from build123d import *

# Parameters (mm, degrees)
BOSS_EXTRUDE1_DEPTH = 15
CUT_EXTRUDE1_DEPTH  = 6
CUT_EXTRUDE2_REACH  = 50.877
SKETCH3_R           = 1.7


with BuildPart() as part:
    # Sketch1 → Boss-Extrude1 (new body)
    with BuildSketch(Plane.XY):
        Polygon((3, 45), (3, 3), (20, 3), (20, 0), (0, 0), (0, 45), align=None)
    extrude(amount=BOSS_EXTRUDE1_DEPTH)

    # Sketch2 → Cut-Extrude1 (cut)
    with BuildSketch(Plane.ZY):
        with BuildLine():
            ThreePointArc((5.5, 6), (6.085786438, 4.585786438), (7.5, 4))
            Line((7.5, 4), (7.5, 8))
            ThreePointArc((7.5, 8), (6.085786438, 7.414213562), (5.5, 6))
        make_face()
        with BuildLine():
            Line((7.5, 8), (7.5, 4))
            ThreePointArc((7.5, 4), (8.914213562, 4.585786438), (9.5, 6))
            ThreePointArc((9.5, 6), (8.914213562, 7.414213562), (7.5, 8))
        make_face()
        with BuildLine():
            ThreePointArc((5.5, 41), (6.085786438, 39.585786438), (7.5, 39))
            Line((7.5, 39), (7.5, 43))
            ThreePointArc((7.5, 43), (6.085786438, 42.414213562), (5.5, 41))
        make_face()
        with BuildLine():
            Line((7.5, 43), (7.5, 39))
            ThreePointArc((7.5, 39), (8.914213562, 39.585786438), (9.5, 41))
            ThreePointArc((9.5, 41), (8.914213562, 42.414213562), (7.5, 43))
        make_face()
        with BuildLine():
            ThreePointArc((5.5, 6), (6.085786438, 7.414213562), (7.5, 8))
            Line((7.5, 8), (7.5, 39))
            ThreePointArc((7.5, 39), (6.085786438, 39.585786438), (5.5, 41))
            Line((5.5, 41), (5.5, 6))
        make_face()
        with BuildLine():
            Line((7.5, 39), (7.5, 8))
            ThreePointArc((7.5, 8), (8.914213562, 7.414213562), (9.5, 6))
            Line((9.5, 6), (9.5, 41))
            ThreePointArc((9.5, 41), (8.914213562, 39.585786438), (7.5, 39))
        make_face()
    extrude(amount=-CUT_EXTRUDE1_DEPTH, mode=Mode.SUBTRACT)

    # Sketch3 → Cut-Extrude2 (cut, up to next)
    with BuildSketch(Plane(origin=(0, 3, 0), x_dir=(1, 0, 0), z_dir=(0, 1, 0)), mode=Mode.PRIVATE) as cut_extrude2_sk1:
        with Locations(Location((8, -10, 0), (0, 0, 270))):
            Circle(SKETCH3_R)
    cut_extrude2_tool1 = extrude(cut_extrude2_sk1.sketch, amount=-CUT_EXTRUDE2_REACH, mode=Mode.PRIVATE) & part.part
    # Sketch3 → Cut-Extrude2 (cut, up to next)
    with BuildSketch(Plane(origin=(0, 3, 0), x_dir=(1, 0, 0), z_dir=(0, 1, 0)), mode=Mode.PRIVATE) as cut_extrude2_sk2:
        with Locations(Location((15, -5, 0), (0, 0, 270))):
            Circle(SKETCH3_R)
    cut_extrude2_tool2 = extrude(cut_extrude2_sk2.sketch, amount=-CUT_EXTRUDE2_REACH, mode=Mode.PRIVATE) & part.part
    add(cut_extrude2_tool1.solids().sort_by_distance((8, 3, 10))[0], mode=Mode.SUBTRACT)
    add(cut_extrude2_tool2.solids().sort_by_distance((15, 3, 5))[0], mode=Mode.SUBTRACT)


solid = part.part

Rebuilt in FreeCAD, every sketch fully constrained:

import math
import FreeCAD as App
import Part
import Sketcher
from FreeCAD import Vector
Q = App.Units.Quantity

doc = App.newDocument("Part")
body = doc.addObject("PartDesign::Body", "Body")

sketch1 = body.newObject("Sketcher::SketchObject", "Sketch")
sketch1.AttachmentSupport = (doc.getObject("XY_Plane"), [""])
sketch1.MapMode = "FlatFace"
sketch1.addGeometry([
    Part.LineSegment(Vector(3, 3, 0), Vector(3, 45, 0)),
    Part.LineSegment(Vector(3, 45, 0), Vector(0, 45, 0)),
    Part.LineSegment(Vector(0, 45, 0), Vector(0, 0, 0)),
    Part.LineSegment(Vector(0, 0, 0), Vector(20, 0, 0)),
    Part.LineSegment(Vector(20, 0, 0), Vector(20, 3, 0)),
    Part.LineSegment(Vector(20, 3, 0), Vector(3, 3, 0)),
], False)
sketch1.addConstraint([
    Sketcher.Constraint("Coincident", 0, 2, 1, 1),
    Sketcher.Constraint("Coincident", 1, 2, 2, 1),
    Sketcher.Constraint("Coincident", 2, 2, 3, 1),
    Sketcher.Constraint("Coincident", 3, 2, 4, 1),
    Sketcher.Constraint("Coincident", 4, 2, 5, 1),
    Sketcher.Constraint("Coincident", 5, 2, 0, 1),
    Sketcher.Constraint("Vertical", 0),
    Sketcher.Constraint("Horizontal", 1),
    Sketcher.Constraint("Vertical", 2),
    Sketcher.Constraint("Horizontal", 3),
    Sketcher.Constraint("Vertical", 4),
    Sketcher.Constraint("Horizontal", 5),
    Sketcher.Constraint("Coincident", 2, 2, -1, 1),
    Sketcher.Constraint("Equal", 1, 4),
    Sketcher.Constraint("DistanceX", 1, 2, 1, 1, Q("3 mm")),
    Sketcher.Constraint("DistanceX", 3, 1, 3, 2, Q("20 mm")),
    Sketcher.Constraint("DistanceY", 0, 1, 0, 2, Q("42 mm")),
])
pad1 = body.newObject("PartDesign::Pad", "Pad")
pad1.Profile = sketch1
pad1.Length = 15

sketch2 = body.newObject("Sketcher::SketchObject", "Sketch001")
sketch2.AttachmentSupport = (doc.getObject("YZ_Plane"), [""])
sketch2.MapMode = "FlatFace"
sketch2.addGeometry([
    Part.ArcOfCircle(Part.Circle(Vector(6, 7.5, 0), Vector(0, 0, 1), 2), math.radians(-180), math.radians(-90)),
    Part.ArcOfCircle(Part.Circle(Vector(6, 7.5, 0), Vector(0, 0, 1), 2), math.radians(90), math.radians(180)),
    Part.LineSegment(Vector(6, 9.5, 0), Vector(41, 9.5, 0)),
    Part.ArcOfCircle(Part.Circle(Vector(41, 7.5, 0), Vector(0, 0, 1), 2), math.radians(0), math.radians(90)),
    Part.ArcOfCircle(Part.Circle(Vector(41, 7.5, 0), Vector(0, 0, 1), 2), math.radians(-90), math.radians(0)),
    Part.LineSegment(Vector(41, 5.5, 0), Vector(6, 5.5, 0)),
], False)
sketch2.addConstraint([
    Sketcher.Constraint("Tangent", 0, 1, 1, 2),
    Sketcher.Constraint("Tangent", 1, 1, 2, 1),
    Sketcher.Constraint("Tangent", 2, 2, 3, 2),
    Sketcher.Constraint("Tangent", 3, 1, 4, 2),
    Sketcher.Constraint("Tangent", 4, 1, 5, 1),
    Sketcher.Constraint("Tangent", 5, 2, 0, 2),
    Sketcher.Constraint("Horizontal", 2),
    Sketcher.Constraint("Horizontal", 5),
    Sketcher.Constraint("Equal", 0, 1),
    Sketcher.Constraint("Equal", 1, 3),
    Sketcher.Constraint("Horizontal", 4, 3, 0, 1),
    Sketcher.Constraint("Horizontal", 0, 1, 3, 1),
    Sketcher.Constraint("Radius", 0, Q("2 mm")),
    Sketcher.Constraint("DistanceX", 2, 1, 2, 2, Q("35 mm")),
    Sketcher.Constraint("DistanceX", -1, 1, 0, 3, Q("6 mm")),
    Sketcher.Constraint("DistanceY", -1, 1, 0, 3, Q("7.5 mm")),
])
pocket1 = body.newObject("PartDesign::Pocket", "Pocket")
pocket1.Profile = sketch2
pocket1.Length = 6
pocket1.Reversed = True

sketch3 = body.newObject("Sketcher::SketchObject", "Sketch002")
sketch3.AttachmentSupport = (doc.getObject("XZ_Plane"), [""])
sketch3.MapMode = "FlatFace"
sketch3.AttachmentOffset = App.Placement(Vector(0, 0, -3), App.Rotation())
sketch3.addGeometry(Part.Circle(Vector(8, 10, 0), Vector(0, 0, 1), 1.7), False)
sketch3.addConstraint([
    Sketcher.Constraint("Diameter", 0, Q("3.4 mm")),
    Sketcher.Constraint("DistanceX", -1, 1, 0, 3, Q("8 mm")),
    Sketcher.Constraint("DistanceY", -1, 1, 0, 3, Q("10 mm")),
])
pocket2 = body.newObject("PartDesign::Pocket", "Pocket001")
pocket2.Profile = sketch3
pocket2.Type = "UpToFirst"
pocket2.Reversed = True

sketch4 = body.newObject("Sketcher::SketchObject", "Sketch003")
sketch4.AttachmentSupport = (doc.getObject("XZ_Plane"), [""])
sketch4.MapMode = "FlatFace"
sketch4.AttachmentOffset = App.Placement(Vector(0, 0, -3), App.Rotation())
sketch4.addGeometry(Part.Circle(Vector(15, 5, 0), Vector(0, 0, 1), 1.7), False)
sketch4.addConstraint([
    Sketcher.Constraint("Diameter", 0, Q("3.4 mm")),
    Sketcher.Constraint("DistanceX", -1, 1, 0, 3, Q("15 mm")),
    Sketcher.Constraint("DistanceY", -1, 1, 0, 3, Q("5 mm")),
])
pocket3 = body.newObject("PartDesign::Pocket", "Pocket002")
pocket3.Profile = sketch4
pocket3.Type = "UpToFirst"
pocket3.Reversed = True

doc.recompute()
